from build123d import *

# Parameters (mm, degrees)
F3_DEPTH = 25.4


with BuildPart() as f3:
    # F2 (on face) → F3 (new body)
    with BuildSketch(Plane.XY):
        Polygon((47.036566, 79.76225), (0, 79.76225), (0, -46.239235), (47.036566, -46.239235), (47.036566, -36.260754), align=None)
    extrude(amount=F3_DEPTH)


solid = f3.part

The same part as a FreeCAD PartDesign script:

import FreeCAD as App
import Part
import Sketcher

V = App.Vector
Q = App.Units.Quantity


def add_polygon(sketch, points):
    """Adds a closed chain of lines whose ends are joined by coincident constraints."""
    first, n = sketch.GeometryCount, len(points)
    for a, b in zip(points, points[1:] + points[:1]):
        sketch.addGeometry(Part.LineSegment(App.Vector(*a, 0), App.Vector(*b, 0)), False)
    for i in range(n):
        sketch.addConstraint(Sketcher.Constraint("Coincident", first + i, 2, first + (i + 1) % n, 1))

doc = App.newDocument("Part")
params = doc.addObject("Spreadsheet::Sheet", "Params")
for row, (alias, value) in enumerate([
    ("pad1_length", "1 in"),
], start=1):
    params.set(f"A{row}", alias)
    params.set(f"B{row}", "=" + value)
    params.setAlias(f"B{row}", alias)

body = doc.addObject("PartDesign::Body", "Body")

sketch1 = body.newObject("Sketcher::SketchObject", "Sketch")
sketch1.AttachmentSupport = (doc.getObject("XY_Plane"), [""])
sketch1.MapMode = "FlatFace"
add_polygon(sketch1, [(47, 80), (0, 80), (0, -46), (47, -46)])
sketch1.addConstraint(Sketcher.Constraint("Horizontal", 0))
sketch1.addConstraint(Sketcher.Constraint("Vertical", 1))
sketch1.addConstraint(Sketcher.Constraint("Horizontal", 2))
sketch1.addConstraint(Sketcher.Constraint("Vertical", 3))
sketch1.addConstraint(Sketcher.Constraint("PointOnObject", 0, 2, -2))
sketch1.addConstraint(Sketcher.Constraint("DistanceX", 0, 2, 0, 1, Q("47.036566 mm")))
sketch1.addConstraint(Sketcher.Constraint("DistanceY", 1, 2, 1, 1, Q("126.001485 mm")))
sketch1.addConstraint(Sketcher.Constraint("DistanceY", -1, 1, 0, 2, Q("79.76225 mm")))
pad1 = body.newObject("PartDesign::Pad", "Pad")
pad1.Profile = sketch1
pad1.setExpression("Length", "Params.pad1_length")

doc.recompute()
